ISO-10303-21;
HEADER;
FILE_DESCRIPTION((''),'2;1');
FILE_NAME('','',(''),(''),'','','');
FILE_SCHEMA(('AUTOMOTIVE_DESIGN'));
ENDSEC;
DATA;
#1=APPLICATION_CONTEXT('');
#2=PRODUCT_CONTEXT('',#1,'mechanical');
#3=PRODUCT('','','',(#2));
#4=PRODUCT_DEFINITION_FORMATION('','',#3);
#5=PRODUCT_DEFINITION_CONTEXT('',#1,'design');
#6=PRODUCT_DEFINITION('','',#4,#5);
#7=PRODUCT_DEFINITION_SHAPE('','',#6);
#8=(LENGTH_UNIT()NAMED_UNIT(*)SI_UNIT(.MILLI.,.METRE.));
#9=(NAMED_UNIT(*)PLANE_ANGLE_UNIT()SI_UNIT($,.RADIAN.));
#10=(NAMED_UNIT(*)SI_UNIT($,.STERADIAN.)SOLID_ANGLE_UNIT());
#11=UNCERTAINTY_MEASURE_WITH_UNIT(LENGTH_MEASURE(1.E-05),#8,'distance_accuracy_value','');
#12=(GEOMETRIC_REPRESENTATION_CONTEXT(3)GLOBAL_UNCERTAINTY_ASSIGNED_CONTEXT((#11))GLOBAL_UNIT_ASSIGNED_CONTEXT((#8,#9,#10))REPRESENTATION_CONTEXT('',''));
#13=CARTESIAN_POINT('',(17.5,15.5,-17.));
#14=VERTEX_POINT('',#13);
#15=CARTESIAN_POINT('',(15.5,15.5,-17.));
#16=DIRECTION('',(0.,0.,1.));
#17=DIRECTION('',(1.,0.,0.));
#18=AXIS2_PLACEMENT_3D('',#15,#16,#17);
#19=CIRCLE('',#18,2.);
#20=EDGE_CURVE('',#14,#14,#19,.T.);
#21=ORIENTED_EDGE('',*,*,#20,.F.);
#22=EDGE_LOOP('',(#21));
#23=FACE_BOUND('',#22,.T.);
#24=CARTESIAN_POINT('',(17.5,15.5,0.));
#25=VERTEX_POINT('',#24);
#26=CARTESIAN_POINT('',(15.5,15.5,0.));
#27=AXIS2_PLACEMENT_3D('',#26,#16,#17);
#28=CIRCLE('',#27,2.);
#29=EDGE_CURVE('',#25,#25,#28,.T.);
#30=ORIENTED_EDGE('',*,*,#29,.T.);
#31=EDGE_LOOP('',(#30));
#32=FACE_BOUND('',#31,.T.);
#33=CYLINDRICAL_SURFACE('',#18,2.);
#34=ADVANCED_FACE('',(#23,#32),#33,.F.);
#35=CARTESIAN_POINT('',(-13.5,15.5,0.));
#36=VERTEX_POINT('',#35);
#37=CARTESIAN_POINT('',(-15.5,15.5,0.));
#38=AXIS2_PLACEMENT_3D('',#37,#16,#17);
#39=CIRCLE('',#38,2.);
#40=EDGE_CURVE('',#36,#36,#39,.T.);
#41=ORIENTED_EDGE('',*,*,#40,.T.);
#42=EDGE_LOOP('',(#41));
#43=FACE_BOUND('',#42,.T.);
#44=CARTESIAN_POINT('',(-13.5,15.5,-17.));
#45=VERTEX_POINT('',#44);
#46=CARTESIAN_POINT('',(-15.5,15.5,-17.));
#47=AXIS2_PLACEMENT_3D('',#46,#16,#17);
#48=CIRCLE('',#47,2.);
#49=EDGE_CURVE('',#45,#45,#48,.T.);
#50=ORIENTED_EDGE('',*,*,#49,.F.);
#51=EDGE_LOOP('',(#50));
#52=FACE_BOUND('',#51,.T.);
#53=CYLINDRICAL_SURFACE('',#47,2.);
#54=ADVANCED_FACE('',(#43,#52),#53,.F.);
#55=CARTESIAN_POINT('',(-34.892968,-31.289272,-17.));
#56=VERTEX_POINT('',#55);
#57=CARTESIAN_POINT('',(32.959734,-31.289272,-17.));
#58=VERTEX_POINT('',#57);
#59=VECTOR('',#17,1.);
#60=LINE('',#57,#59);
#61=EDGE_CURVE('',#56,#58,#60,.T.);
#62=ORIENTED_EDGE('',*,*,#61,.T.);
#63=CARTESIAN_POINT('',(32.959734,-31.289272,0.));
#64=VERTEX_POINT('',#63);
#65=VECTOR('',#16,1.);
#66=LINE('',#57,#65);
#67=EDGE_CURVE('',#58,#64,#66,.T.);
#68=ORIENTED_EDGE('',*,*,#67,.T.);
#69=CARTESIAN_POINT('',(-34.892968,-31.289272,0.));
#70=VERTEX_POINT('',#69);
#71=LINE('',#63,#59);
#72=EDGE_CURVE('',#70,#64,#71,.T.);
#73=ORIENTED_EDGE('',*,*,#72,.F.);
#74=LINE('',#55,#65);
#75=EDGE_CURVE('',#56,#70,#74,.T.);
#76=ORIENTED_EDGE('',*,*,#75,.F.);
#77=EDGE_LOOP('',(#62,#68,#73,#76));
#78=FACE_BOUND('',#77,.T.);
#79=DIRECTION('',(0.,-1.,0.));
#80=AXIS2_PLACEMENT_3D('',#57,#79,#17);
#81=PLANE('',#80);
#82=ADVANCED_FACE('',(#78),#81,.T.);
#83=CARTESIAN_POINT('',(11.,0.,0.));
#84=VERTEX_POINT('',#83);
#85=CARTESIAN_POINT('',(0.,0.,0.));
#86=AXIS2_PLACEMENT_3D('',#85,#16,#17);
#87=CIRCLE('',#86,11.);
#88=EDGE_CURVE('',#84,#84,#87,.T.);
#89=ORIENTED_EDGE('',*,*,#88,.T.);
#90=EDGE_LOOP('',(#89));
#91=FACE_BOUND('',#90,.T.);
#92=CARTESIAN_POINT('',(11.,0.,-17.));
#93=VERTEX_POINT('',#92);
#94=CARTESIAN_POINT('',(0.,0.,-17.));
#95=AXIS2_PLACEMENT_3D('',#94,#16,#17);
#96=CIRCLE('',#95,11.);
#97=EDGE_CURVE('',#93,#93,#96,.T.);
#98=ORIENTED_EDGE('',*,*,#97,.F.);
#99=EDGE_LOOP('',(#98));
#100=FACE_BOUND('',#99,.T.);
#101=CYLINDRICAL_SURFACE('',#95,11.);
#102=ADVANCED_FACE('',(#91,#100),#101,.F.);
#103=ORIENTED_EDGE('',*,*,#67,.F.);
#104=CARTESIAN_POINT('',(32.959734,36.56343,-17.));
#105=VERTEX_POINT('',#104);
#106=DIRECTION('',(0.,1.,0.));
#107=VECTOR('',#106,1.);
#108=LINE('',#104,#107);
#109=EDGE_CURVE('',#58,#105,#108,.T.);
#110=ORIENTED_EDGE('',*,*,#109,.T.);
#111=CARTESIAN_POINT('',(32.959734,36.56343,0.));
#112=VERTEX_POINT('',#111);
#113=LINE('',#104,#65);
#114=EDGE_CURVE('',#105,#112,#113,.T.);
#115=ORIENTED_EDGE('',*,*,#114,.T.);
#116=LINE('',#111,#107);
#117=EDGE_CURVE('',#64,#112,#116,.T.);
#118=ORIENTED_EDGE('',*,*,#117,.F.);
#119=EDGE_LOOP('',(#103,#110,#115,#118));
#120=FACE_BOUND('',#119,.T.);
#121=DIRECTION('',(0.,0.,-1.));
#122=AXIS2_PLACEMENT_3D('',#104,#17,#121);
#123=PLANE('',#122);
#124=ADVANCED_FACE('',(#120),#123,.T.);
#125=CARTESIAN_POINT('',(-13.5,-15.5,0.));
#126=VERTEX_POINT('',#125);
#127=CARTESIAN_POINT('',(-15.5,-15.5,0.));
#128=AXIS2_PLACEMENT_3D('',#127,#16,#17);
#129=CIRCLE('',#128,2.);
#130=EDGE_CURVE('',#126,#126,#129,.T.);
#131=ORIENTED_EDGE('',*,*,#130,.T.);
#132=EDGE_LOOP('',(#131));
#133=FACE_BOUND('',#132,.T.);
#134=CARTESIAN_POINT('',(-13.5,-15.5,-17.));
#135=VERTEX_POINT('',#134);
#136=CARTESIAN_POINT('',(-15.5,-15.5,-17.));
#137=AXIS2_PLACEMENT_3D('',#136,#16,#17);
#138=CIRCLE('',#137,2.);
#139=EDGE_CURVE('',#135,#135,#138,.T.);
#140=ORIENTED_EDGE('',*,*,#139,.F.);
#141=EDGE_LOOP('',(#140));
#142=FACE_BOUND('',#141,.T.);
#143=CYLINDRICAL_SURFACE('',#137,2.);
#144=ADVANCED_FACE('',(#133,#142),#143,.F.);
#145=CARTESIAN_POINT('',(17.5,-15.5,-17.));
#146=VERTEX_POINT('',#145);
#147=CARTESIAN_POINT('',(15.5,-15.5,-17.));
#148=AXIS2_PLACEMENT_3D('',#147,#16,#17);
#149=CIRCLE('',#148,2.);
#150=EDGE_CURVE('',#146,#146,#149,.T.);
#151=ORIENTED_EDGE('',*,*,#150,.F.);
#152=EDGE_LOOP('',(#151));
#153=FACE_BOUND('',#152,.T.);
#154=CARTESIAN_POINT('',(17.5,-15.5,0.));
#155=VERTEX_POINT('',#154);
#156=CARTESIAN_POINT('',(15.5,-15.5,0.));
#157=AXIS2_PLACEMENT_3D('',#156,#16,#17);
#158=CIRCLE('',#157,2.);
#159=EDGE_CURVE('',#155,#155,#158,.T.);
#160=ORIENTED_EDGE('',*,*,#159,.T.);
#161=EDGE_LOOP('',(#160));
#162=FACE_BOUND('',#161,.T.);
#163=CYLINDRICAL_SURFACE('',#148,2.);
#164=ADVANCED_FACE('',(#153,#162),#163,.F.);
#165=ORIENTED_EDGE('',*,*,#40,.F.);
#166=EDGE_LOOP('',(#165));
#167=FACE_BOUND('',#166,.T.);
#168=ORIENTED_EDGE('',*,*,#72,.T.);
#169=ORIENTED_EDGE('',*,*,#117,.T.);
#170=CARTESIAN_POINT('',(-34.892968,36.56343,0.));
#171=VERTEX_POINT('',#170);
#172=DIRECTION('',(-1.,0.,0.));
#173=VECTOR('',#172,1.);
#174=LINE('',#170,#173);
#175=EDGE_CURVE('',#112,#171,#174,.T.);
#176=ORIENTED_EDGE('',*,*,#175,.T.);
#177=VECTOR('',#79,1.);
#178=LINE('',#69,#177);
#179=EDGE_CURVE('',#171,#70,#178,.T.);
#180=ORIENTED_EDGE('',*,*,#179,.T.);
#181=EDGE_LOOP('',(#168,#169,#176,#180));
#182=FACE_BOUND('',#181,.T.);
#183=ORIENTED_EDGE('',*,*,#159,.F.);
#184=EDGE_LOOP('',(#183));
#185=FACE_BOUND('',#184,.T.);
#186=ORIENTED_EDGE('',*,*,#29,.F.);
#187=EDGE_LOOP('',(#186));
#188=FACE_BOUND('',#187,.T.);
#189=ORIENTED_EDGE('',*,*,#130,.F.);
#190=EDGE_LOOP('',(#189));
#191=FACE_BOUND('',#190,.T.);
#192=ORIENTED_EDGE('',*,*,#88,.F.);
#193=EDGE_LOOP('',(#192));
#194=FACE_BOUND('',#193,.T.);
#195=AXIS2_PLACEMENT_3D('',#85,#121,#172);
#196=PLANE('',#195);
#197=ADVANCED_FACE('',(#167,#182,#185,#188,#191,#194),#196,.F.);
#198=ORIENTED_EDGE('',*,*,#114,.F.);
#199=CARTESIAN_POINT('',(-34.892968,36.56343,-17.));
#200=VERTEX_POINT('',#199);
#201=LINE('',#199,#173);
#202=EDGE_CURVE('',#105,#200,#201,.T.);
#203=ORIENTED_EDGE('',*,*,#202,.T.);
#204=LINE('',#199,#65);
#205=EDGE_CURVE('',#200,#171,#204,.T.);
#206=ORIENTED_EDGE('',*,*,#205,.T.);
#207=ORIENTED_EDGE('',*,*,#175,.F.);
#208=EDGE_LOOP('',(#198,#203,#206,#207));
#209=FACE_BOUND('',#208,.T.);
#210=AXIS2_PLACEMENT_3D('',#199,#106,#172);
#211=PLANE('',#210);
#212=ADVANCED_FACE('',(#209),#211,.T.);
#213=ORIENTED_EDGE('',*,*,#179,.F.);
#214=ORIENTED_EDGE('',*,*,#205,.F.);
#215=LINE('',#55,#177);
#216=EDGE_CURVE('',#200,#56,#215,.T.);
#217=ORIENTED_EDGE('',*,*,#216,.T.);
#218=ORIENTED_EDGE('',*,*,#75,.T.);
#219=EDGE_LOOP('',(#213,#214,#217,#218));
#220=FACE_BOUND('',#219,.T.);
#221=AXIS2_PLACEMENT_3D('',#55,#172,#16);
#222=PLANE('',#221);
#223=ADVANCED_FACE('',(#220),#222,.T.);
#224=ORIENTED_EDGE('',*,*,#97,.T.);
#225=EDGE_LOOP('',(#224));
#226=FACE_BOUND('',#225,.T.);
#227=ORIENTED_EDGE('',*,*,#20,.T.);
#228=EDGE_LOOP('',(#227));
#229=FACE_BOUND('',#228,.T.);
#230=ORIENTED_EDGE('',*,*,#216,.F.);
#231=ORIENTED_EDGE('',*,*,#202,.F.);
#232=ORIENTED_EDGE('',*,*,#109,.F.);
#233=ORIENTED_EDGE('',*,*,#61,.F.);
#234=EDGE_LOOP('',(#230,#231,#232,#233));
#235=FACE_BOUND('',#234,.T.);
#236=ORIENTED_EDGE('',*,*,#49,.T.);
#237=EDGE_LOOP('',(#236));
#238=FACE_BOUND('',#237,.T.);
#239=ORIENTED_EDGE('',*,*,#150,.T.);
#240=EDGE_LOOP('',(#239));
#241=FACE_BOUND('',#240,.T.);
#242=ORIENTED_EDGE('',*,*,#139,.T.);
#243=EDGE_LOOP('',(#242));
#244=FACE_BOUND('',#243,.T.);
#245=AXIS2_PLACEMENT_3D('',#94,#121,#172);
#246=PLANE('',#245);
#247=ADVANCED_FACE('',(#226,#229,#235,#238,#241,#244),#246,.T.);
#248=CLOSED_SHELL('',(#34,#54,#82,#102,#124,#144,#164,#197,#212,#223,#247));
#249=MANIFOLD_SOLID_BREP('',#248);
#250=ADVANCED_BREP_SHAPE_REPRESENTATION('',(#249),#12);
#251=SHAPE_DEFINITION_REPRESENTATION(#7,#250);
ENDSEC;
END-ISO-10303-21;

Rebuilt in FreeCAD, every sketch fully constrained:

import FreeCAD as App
import Part
import Sketcher


def add_polygon(sketch, points):
    """Adds a closed chain of lines whose ends are joined by coincident constraints."""
    first, n = sketch.GeometryCount, len(points)
    for a, b in zip(points, points[1:] + points[:1]):
        sketch.addGeometry(Part.LineSegment(App.Vector(*a, 0), App.Vector(*b, 0)), False)
    for i in range(n):
        sketch.addConstraint(Sketcher.Constraint("Coincident", first + i, 2, first + (i + 1) % n, 1))

doc = App.newDocument("Part")
body = doc.addObject("PartDesign::Body", "Body")

sketch1 = doc.addObject("Sketcher::SketchObject", "Sketch")
body.addObject(sketch1)
sketch1.AttachmentSupport = (doc.XY_Plane, [""])
sketch1.MapMode = "FlatFace"
add_polygon(sketch1, [(-35, 37), (-35, -31), (33, -31), (33, 37)])
sketch1.addConstraint(Sketcher.Constraint("Vertical", 0))
sketch1.addConstraint(Sketcher.Constraint("Horizontal", 1))
sketch1.addConstraint(Sketcher.Constraint("Vertical", 2))
sketch1.addConstraint(Sketcher.Constraint("Horizontal", 3))
sketch1.addConstraint(Sketcher.Constraint("Equal", 3, 0))
sketch1.addConstraint(Sketcher.Constraint("DistanceX", 1, 1, 1, 2, 67.852702))
sketch1.addConstraint(Sketcher.Constraint("DistanceX", 0, 2, -1, 1, 34.892968))
sketch1.addConstraint(Sketcher.Constraint("DistanceY", -1, 1, 2, 2, 36.56343))
pad1 = doc.addObject("PartDesign::Pad", "Pad")
body.addObject(pad1)
pad1.Profile = sketch1
pad1.Length = 17
pad1.Reversed = True

sketch2 = doc.addObject("Sketcher::SketchObject", "Sketch001")
body.addObject(sketch2)
sketch2.AttachmentSupport = (doc.XY_Plane, [""])
sketch2.MapMode = "FlatFace"
sketch2.addGeometry(Part.Circle(App.Vector(0, 0, 0), App.Vector(0, 0, 1), 11), False)
sketch2.addConstraint(Sketcher.Constraint("Coincident", 0, 3, -1, 1))
sketch2.addConstraint(Sketcher.Constraint("Diameter", 0, 22.0))
pocket1 = doc.addObject("PartDesign::Pocket", "Pocket")
body.addObject(pocket1)
pocket1.Profile = sketch2
pocket1.Length = 17

sketch3 = doc.addObject("Sketcher::SketchObject", "Sketch002")
body.addObject(sketch3)
sketch3.AttachmentSupport = (doc.XY_Plane, [""])
sketch3.MapMode = "FlatFace"
sketch3.addGeometry(Part.Circle(App.Vector(-15.5, 15.5, 0), App.Vector(0, 0, 1), 2), False)
sketch3.addGeometry(Part.Circle(App.Vector(15.5, 15.5, 0), App.Vector(0, 0, 1), 2), False)
sketch3.addGeometry(Part.Circle(App.Vector(-15.5, -15.5, 0), App.Vector(0, 0, 1), 2), False)
sketch3.addGeometry(Part.Circle(App.Vector(15.5, -15.5, 0), App.Vector(0, 0, 1), 2), False)
sketch3.addConstraint(Sketcher.Constraint("Equal", 0, 1))
sketch3.addConstraint(Sketcher.Constraint("Equal", 1, 2))
sketch3.addConstraint(Sketcher.Constraint("Equal", 2, 3))
sketch3.addConstraint(Sketcher.Constraint("Symmetric", 1, 3, 2, 3, -1, 1))
sketch3.addConstraint(Sketcher.Constraint("Symmetric", 0, 3, 3, 3, -1, 1))
sketch3.addConstraint(Sketcher.Constraint("Symmetric", 0, 3, 1, 3, -2))
sketch3.addConstraint(Sketcher.Constraint("Diameter", 0, 4.0))
sketch3.addConstraint(Sketcher.Constraint("DistanceX", 0, 3, 1, 3, 31.0))
sketch3.addConstraint(Sketcher.Constraint("DistanceY", 2, 3, 0, 3, 31.0))
pocket2 = doc.addObject("PartDesign::Pocket", "Pocket001")
body.addObject(pocket2)
pocket2.Profile = sketch3
pocket2.Length = 17

doc.recompute()
